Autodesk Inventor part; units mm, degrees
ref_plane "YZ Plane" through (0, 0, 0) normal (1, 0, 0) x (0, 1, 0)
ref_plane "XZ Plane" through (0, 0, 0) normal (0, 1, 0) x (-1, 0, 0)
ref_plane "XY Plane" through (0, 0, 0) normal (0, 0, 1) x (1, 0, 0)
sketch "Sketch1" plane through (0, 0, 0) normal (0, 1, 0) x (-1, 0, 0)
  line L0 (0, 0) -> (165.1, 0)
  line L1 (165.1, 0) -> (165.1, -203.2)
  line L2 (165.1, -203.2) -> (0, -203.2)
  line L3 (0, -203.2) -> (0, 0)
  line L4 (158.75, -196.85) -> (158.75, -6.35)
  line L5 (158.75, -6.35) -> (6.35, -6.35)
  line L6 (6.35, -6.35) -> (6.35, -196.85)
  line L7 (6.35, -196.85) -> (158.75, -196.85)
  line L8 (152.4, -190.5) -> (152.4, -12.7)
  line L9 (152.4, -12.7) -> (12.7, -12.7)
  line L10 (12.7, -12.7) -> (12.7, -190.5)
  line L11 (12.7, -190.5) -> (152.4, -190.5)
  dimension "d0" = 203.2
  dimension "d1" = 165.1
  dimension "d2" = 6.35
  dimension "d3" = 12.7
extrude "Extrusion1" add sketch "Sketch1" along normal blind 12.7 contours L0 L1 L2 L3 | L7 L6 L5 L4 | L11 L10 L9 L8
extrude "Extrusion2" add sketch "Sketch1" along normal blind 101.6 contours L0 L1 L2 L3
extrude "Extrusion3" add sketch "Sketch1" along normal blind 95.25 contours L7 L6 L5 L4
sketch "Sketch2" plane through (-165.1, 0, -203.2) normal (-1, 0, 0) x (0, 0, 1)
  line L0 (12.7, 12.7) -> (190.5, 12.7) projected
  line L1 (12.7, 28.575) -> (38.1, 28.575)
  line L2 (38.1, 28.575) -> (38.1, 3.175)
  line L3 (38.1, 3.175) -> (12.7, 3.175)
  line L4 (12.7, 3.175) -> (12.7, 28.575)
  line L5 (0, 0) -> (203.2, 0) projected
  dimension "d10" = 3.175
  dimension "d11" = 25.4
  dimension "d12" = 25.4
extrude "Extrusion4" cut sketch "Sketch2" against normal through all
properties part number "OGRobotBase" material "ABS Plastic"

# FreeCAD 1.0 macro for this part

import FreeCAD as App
import Part
import Sketcher
from FreeCAD import Vector
Q = App.Units.Quantity

doc = App.newDocument("Part")
body = doc.addObject("PartDesign::Body", "Body")

# Sketch on XZ plane
sketch1 = body.newObject("Sketcher::SketchObject", "Sketch")
sketch1.AttachmentSupport = (doc.getObject("XZ_Plane"), [""])
sketch1.MapMode = "FlatFace"
sketch1.addGeometry([
    Part.LineSegment(Vector(-165, 0, 0), Vector(0, 0, 0)),
    Part.LineSegment(Vector(0, 0, 0), Vector(0, -203, 0)),
    Part.LineSegment(Vector(0, -203, 0), Vector(-165, -203, 0)),
    Part.LineSegment(Vector(-165, -203, 0), Vector(-165, 0, 0)),
], False)
sketch1.addConstraint([
    Sketcher.Constraint("Coincident", 0, 2, 1, 1),
    Sketcher.Constraint("Coincident", 1, 2, 2, 1),
    Sketcher.Constraint("Coincident", 2, 2, 3, 1),
    Sketcher.Constraint("Coincident", 3, 2, 0, 1),
    Sketcher.Constraint("Horizontal", 0),
    Sketcher.Constraint("Vertical", 1),
    Sketcher.Constraint("Horizontal", 2),
    Sketcher.Constraint("Vertical", 3),
    Sketcher.Constraint("Coincident", 0, 2, -1, 1),
    Sketcher.Constraint("DistanceY", 1, 2, 1, 1, Q("8 in")),
    Sketcher.Constraint("DistanceX", 0, 1, 0, 2, Q("6.5 in")),
])
pad1 = body.newObject("PartDesign::Pad", "Pad")
pad1.Profile = sketch1
pad1.Length = Q("0.5 in")
pad1.Reversed = True

# Sketch on XZ plane
sketch2 = body.newObject("Sketcher::SketchObject", "Sketch001")
sketch2.AttachmentSupport = (doc.getObject("XZ_Plane"), [""])
sketch2.MapMode = "FlatFace"
sketch2.addGeometry([
    Part.LineSegment(Vector(-165, 0, 0), Vector(0, 0, 0)),  # 0
    Part.LineSegment(Vector(0, 0, 0), Vector(0, -203, 0)),  # 1
    Part.LineSegment(Vector(0, -203, 0), Vector(-165, -203, 0)),  # 2
    Part.LineSegment(Vector(-165, -203, 0), Vector(-165, 0, 0)),  # 3
    Part.LineSegment(Vector(-159, -6, 0), Vector(-159, -197, 0)),  # 4
    Part.LineSegment(Vector(-159, -197, 0), Vector(-6, -197, 0)),  # 5
    Part.LineSegment(Vector(-6, -197, 0), Vector(-6, -6, 0)),  # 6
    Part.LineSegment(Vector(-6, -6, 0), Vector(-159, -6, 0)),  # 7
], False)
sketch2.addConstraint([
    Sketcher.Constraint("Coincident", 0, 2, 1, 1),
    Sketcher.Constraint("Coincident", 1, 2, 2, 1),
    Sketcher.Constraint("Coincident", 2, 2, 3, 1),
    Sketcher.Constraint("Coincident", 3, 2, 0, 1),
    Sketcher.Constraint("Coincident", 4, 2, 5, 1),
    Sketcher.Constraint("Coincident", 5, 2, 6, 1),
    Sketcher.Constraint("Coincident", 6, 2, 7, 1),
    Sketcher.Constraint("Coincident", 7, 2, 4, 1),
    Sketcher.Constraint("Horizontal", 0),
    Sketcher.Constraint("Vertical", 1),
    Sketcher.Constraint("Horizontal", 2),
    Sketcher.Constraint("Vertical", 3),
    Sketcher.Constraint("Vertical", 4),
    Sketcher.Constraint("Horizontal", 5),
    Sketcher.Constraint("Vertical", 6),
    Sketcher.Constraint("Horizontal", 7),
    Sketcher.Constraint("Coincident", 0, 2, -1, 1),
    Sketcher.Constraint("DistanceY", 1, 2, 1, 1, Q("8 in")),
    Sketcher.Constraint("DistanceX", 0, 1, 0, 2, Q("6.5 in")),
    Sketcher.Constraint("DistanceX", 5, 1, 5, 2, Q("6 in")),
    Sketcher.Constraint("DistanceX", 5, 2, -1, 1, Q("0.25 in")),
    Sketcher.Constraint("DistanceY", 6, 2, -1, 1, Q("0.25 in")),
    Sketcher.Constraint("DistanceY", 2, 2, 4, 2, Q("0.25 in")),
])
pad2 = body.newObject("PartDesign::Pad", "Pad001")
pad2.Profile = sketch2
pad2.Length = Q("4 in")
pad2.Reversed = True

# Sketch on XZ plane
sketch3 = body.newObject("Sketcher::SketchObject", "Sketch002")
sketch3.AttachmentSupport = (doc.getObject("XZ_Plane"), [""])
sketch3.MapMode = "FlatFace"
sketch3.addGeometry([
    Part.LineSegment(Vector(-6, -197, 0), Vector(-159, -197, 0)),  # 0
    Part.LineSegment(Vector(-159, -197, 0), Vector(-159, -6, 0)),  # 1
    Part.LineSegment(Vector(-159, -6, 0), Vector(-6, -6, 0)),  # 2
    Part.LineSegment(Vector(-6, -6, 0), Vector(-6, -197, 0)),  # 3
    Part.LineSegment(Vector(-152, -13, 0), Vector(-152, -190, 0)),  # 4
    Part.LineSegment(Vector(-152, -190, 0), Vector(-13, -190, 0)),  # 5
    Part.LineSegment(Vector(-13, -190, 0), Vector(-13, -13, 0)),  # 6
    Part.LineSegment(Vector(-13, -13, 0), Vector(-152, -13, 0)),  # 7
], False)
sketch3.addConstraint([
    Sketcher.Constraint("Coincident", 0, 2, 1, 1),
    Sketcher.Constraint("Coincident", 1, 2, 2, 1),
    Sketcher.Constraint("Coincident", 2, 2, 3, 1),
    Sketcher.Constraint("Coincident", 3, 2, 0, 1),
    Sketcher.Constraint("Coincident", 4, 2, 5, 1),
    Sketcher.Constraint("Coincident", 5, 2, 6, 1),
    Sketcher.Constraint("Coincident", 6, 2, 7, 1),
    Sketcher.Constraint("Coincident", 7, 2, 4, 1),
    Sketcher.Constraint("Horizontal", 0),
    Sketcher.Constraint("Vertical", 1),
    Sketcher.Constraint("Horizontal", 2),
    Sketcher.Constraint("Vertical", 3),
    Sketcher.Constraint("Vertical", 4),
    Sketcher.Constraint("Horizontal", 5),
    Sketcher.Constraint("Vertical", 6),
    Sketcher.Constraint("Horizontal", 7),
    Sketcher.Constraint("DistanceX", 5, 2, -1, 1, Q("0.5 in")),
    Sketcher.Constraint("DistanceY", 6, 2, -1, 1, Q("0.5 in")),
    Sketcher.Constraint("DistanceX", 0, 2, 0, 1, Q("6 in")),
    Sketcher.Constraint("DistanceY", 4, 2, 4, 1, Q("7 in")),
    Sketcher.Constraint("DistanceY", 1, 2, -1, 1, Q("0.25 in")),
    Sketcher.Constraint("DistanceX", 2, 2, -1, 1, Q("0.25 in")),
    Sketcher.Constraint("DistanceX", 0, 2, 4, 2, Q("0.25 in")),
    Sketcher.Constraint("DistanceY", 0, 2, 4, 2, Q("0.25 in")),
])
pad3 = body.newObject("PartDesign::Pad", "Pad002")
pad3.Profile = sketch3
pad3.Length = Q("3.75 in")
pad3.Reversed = True

# Sketch on YZ plane
sketch4 = body.newObject("Sketcher::SketchObject", "Sketch003")
sketch4.AttachmentSupport = (doc.getObject("YZ_Plane"), [""])
sketch4.MapMode = "FlatFace"
sketch4.AttachmentOffset = App.Placement(Vector(0, 0, -6.5 * 25.4), App.Rotation())
sketch4.addGeometry([
    Part.LineSegment(Vector(29, -190, 0), Vector(3, -190, 0)),
    Part.LineSegment(Vector(3, -190, 0), Vector(3, -165, 0)),
    Part.LineSegment(Vector(3, -165, 0), Vector(29, -165, 0)),
    Part.LineSegment(Vector(29, -165, 0), Vector(29, -190, 0)),
], False)
sketch4.addConstraint([
    Sketcher.Constraint("Coincident", 0, 2, 1, 1),
    Sketcher.Constraint("Coincident", 1, 2, 2, 1),
    Sketcher.Constraint("Coincident", 2, 2, 3, 1),
    Sketcher.Constraint("Coincident", 3, 2, 0, 1),
    Sketcher.Constraint("Horizontal", 0),
    Sketcher.Constraint("Vertical", 1),
    Sketcher.Constraint("Horizontal", 2),
    Sketcher.Constraint("Vertical", 3),
    Sketcher.Constraint("Equal", 2, 1),
    Sketcher.Constraint("DistanceX", 0, 2, 0, 1, Q("1 in")),
    Sketcher.Constraint("DistanceX", -1, 1, 0, 2, Q("0.125 in")),
    Sketcher.Constraint("DistanceY", 0, 2, -1, 1, Q("7.5 in")),
])
pocket1 = body.newObject("PartDesign::Pocket", "Pocket")
pocket1.Profile = sketch4
pocket1.Type = "ThroughAll"
pocket1.Reversed = True

doc.recompute()
